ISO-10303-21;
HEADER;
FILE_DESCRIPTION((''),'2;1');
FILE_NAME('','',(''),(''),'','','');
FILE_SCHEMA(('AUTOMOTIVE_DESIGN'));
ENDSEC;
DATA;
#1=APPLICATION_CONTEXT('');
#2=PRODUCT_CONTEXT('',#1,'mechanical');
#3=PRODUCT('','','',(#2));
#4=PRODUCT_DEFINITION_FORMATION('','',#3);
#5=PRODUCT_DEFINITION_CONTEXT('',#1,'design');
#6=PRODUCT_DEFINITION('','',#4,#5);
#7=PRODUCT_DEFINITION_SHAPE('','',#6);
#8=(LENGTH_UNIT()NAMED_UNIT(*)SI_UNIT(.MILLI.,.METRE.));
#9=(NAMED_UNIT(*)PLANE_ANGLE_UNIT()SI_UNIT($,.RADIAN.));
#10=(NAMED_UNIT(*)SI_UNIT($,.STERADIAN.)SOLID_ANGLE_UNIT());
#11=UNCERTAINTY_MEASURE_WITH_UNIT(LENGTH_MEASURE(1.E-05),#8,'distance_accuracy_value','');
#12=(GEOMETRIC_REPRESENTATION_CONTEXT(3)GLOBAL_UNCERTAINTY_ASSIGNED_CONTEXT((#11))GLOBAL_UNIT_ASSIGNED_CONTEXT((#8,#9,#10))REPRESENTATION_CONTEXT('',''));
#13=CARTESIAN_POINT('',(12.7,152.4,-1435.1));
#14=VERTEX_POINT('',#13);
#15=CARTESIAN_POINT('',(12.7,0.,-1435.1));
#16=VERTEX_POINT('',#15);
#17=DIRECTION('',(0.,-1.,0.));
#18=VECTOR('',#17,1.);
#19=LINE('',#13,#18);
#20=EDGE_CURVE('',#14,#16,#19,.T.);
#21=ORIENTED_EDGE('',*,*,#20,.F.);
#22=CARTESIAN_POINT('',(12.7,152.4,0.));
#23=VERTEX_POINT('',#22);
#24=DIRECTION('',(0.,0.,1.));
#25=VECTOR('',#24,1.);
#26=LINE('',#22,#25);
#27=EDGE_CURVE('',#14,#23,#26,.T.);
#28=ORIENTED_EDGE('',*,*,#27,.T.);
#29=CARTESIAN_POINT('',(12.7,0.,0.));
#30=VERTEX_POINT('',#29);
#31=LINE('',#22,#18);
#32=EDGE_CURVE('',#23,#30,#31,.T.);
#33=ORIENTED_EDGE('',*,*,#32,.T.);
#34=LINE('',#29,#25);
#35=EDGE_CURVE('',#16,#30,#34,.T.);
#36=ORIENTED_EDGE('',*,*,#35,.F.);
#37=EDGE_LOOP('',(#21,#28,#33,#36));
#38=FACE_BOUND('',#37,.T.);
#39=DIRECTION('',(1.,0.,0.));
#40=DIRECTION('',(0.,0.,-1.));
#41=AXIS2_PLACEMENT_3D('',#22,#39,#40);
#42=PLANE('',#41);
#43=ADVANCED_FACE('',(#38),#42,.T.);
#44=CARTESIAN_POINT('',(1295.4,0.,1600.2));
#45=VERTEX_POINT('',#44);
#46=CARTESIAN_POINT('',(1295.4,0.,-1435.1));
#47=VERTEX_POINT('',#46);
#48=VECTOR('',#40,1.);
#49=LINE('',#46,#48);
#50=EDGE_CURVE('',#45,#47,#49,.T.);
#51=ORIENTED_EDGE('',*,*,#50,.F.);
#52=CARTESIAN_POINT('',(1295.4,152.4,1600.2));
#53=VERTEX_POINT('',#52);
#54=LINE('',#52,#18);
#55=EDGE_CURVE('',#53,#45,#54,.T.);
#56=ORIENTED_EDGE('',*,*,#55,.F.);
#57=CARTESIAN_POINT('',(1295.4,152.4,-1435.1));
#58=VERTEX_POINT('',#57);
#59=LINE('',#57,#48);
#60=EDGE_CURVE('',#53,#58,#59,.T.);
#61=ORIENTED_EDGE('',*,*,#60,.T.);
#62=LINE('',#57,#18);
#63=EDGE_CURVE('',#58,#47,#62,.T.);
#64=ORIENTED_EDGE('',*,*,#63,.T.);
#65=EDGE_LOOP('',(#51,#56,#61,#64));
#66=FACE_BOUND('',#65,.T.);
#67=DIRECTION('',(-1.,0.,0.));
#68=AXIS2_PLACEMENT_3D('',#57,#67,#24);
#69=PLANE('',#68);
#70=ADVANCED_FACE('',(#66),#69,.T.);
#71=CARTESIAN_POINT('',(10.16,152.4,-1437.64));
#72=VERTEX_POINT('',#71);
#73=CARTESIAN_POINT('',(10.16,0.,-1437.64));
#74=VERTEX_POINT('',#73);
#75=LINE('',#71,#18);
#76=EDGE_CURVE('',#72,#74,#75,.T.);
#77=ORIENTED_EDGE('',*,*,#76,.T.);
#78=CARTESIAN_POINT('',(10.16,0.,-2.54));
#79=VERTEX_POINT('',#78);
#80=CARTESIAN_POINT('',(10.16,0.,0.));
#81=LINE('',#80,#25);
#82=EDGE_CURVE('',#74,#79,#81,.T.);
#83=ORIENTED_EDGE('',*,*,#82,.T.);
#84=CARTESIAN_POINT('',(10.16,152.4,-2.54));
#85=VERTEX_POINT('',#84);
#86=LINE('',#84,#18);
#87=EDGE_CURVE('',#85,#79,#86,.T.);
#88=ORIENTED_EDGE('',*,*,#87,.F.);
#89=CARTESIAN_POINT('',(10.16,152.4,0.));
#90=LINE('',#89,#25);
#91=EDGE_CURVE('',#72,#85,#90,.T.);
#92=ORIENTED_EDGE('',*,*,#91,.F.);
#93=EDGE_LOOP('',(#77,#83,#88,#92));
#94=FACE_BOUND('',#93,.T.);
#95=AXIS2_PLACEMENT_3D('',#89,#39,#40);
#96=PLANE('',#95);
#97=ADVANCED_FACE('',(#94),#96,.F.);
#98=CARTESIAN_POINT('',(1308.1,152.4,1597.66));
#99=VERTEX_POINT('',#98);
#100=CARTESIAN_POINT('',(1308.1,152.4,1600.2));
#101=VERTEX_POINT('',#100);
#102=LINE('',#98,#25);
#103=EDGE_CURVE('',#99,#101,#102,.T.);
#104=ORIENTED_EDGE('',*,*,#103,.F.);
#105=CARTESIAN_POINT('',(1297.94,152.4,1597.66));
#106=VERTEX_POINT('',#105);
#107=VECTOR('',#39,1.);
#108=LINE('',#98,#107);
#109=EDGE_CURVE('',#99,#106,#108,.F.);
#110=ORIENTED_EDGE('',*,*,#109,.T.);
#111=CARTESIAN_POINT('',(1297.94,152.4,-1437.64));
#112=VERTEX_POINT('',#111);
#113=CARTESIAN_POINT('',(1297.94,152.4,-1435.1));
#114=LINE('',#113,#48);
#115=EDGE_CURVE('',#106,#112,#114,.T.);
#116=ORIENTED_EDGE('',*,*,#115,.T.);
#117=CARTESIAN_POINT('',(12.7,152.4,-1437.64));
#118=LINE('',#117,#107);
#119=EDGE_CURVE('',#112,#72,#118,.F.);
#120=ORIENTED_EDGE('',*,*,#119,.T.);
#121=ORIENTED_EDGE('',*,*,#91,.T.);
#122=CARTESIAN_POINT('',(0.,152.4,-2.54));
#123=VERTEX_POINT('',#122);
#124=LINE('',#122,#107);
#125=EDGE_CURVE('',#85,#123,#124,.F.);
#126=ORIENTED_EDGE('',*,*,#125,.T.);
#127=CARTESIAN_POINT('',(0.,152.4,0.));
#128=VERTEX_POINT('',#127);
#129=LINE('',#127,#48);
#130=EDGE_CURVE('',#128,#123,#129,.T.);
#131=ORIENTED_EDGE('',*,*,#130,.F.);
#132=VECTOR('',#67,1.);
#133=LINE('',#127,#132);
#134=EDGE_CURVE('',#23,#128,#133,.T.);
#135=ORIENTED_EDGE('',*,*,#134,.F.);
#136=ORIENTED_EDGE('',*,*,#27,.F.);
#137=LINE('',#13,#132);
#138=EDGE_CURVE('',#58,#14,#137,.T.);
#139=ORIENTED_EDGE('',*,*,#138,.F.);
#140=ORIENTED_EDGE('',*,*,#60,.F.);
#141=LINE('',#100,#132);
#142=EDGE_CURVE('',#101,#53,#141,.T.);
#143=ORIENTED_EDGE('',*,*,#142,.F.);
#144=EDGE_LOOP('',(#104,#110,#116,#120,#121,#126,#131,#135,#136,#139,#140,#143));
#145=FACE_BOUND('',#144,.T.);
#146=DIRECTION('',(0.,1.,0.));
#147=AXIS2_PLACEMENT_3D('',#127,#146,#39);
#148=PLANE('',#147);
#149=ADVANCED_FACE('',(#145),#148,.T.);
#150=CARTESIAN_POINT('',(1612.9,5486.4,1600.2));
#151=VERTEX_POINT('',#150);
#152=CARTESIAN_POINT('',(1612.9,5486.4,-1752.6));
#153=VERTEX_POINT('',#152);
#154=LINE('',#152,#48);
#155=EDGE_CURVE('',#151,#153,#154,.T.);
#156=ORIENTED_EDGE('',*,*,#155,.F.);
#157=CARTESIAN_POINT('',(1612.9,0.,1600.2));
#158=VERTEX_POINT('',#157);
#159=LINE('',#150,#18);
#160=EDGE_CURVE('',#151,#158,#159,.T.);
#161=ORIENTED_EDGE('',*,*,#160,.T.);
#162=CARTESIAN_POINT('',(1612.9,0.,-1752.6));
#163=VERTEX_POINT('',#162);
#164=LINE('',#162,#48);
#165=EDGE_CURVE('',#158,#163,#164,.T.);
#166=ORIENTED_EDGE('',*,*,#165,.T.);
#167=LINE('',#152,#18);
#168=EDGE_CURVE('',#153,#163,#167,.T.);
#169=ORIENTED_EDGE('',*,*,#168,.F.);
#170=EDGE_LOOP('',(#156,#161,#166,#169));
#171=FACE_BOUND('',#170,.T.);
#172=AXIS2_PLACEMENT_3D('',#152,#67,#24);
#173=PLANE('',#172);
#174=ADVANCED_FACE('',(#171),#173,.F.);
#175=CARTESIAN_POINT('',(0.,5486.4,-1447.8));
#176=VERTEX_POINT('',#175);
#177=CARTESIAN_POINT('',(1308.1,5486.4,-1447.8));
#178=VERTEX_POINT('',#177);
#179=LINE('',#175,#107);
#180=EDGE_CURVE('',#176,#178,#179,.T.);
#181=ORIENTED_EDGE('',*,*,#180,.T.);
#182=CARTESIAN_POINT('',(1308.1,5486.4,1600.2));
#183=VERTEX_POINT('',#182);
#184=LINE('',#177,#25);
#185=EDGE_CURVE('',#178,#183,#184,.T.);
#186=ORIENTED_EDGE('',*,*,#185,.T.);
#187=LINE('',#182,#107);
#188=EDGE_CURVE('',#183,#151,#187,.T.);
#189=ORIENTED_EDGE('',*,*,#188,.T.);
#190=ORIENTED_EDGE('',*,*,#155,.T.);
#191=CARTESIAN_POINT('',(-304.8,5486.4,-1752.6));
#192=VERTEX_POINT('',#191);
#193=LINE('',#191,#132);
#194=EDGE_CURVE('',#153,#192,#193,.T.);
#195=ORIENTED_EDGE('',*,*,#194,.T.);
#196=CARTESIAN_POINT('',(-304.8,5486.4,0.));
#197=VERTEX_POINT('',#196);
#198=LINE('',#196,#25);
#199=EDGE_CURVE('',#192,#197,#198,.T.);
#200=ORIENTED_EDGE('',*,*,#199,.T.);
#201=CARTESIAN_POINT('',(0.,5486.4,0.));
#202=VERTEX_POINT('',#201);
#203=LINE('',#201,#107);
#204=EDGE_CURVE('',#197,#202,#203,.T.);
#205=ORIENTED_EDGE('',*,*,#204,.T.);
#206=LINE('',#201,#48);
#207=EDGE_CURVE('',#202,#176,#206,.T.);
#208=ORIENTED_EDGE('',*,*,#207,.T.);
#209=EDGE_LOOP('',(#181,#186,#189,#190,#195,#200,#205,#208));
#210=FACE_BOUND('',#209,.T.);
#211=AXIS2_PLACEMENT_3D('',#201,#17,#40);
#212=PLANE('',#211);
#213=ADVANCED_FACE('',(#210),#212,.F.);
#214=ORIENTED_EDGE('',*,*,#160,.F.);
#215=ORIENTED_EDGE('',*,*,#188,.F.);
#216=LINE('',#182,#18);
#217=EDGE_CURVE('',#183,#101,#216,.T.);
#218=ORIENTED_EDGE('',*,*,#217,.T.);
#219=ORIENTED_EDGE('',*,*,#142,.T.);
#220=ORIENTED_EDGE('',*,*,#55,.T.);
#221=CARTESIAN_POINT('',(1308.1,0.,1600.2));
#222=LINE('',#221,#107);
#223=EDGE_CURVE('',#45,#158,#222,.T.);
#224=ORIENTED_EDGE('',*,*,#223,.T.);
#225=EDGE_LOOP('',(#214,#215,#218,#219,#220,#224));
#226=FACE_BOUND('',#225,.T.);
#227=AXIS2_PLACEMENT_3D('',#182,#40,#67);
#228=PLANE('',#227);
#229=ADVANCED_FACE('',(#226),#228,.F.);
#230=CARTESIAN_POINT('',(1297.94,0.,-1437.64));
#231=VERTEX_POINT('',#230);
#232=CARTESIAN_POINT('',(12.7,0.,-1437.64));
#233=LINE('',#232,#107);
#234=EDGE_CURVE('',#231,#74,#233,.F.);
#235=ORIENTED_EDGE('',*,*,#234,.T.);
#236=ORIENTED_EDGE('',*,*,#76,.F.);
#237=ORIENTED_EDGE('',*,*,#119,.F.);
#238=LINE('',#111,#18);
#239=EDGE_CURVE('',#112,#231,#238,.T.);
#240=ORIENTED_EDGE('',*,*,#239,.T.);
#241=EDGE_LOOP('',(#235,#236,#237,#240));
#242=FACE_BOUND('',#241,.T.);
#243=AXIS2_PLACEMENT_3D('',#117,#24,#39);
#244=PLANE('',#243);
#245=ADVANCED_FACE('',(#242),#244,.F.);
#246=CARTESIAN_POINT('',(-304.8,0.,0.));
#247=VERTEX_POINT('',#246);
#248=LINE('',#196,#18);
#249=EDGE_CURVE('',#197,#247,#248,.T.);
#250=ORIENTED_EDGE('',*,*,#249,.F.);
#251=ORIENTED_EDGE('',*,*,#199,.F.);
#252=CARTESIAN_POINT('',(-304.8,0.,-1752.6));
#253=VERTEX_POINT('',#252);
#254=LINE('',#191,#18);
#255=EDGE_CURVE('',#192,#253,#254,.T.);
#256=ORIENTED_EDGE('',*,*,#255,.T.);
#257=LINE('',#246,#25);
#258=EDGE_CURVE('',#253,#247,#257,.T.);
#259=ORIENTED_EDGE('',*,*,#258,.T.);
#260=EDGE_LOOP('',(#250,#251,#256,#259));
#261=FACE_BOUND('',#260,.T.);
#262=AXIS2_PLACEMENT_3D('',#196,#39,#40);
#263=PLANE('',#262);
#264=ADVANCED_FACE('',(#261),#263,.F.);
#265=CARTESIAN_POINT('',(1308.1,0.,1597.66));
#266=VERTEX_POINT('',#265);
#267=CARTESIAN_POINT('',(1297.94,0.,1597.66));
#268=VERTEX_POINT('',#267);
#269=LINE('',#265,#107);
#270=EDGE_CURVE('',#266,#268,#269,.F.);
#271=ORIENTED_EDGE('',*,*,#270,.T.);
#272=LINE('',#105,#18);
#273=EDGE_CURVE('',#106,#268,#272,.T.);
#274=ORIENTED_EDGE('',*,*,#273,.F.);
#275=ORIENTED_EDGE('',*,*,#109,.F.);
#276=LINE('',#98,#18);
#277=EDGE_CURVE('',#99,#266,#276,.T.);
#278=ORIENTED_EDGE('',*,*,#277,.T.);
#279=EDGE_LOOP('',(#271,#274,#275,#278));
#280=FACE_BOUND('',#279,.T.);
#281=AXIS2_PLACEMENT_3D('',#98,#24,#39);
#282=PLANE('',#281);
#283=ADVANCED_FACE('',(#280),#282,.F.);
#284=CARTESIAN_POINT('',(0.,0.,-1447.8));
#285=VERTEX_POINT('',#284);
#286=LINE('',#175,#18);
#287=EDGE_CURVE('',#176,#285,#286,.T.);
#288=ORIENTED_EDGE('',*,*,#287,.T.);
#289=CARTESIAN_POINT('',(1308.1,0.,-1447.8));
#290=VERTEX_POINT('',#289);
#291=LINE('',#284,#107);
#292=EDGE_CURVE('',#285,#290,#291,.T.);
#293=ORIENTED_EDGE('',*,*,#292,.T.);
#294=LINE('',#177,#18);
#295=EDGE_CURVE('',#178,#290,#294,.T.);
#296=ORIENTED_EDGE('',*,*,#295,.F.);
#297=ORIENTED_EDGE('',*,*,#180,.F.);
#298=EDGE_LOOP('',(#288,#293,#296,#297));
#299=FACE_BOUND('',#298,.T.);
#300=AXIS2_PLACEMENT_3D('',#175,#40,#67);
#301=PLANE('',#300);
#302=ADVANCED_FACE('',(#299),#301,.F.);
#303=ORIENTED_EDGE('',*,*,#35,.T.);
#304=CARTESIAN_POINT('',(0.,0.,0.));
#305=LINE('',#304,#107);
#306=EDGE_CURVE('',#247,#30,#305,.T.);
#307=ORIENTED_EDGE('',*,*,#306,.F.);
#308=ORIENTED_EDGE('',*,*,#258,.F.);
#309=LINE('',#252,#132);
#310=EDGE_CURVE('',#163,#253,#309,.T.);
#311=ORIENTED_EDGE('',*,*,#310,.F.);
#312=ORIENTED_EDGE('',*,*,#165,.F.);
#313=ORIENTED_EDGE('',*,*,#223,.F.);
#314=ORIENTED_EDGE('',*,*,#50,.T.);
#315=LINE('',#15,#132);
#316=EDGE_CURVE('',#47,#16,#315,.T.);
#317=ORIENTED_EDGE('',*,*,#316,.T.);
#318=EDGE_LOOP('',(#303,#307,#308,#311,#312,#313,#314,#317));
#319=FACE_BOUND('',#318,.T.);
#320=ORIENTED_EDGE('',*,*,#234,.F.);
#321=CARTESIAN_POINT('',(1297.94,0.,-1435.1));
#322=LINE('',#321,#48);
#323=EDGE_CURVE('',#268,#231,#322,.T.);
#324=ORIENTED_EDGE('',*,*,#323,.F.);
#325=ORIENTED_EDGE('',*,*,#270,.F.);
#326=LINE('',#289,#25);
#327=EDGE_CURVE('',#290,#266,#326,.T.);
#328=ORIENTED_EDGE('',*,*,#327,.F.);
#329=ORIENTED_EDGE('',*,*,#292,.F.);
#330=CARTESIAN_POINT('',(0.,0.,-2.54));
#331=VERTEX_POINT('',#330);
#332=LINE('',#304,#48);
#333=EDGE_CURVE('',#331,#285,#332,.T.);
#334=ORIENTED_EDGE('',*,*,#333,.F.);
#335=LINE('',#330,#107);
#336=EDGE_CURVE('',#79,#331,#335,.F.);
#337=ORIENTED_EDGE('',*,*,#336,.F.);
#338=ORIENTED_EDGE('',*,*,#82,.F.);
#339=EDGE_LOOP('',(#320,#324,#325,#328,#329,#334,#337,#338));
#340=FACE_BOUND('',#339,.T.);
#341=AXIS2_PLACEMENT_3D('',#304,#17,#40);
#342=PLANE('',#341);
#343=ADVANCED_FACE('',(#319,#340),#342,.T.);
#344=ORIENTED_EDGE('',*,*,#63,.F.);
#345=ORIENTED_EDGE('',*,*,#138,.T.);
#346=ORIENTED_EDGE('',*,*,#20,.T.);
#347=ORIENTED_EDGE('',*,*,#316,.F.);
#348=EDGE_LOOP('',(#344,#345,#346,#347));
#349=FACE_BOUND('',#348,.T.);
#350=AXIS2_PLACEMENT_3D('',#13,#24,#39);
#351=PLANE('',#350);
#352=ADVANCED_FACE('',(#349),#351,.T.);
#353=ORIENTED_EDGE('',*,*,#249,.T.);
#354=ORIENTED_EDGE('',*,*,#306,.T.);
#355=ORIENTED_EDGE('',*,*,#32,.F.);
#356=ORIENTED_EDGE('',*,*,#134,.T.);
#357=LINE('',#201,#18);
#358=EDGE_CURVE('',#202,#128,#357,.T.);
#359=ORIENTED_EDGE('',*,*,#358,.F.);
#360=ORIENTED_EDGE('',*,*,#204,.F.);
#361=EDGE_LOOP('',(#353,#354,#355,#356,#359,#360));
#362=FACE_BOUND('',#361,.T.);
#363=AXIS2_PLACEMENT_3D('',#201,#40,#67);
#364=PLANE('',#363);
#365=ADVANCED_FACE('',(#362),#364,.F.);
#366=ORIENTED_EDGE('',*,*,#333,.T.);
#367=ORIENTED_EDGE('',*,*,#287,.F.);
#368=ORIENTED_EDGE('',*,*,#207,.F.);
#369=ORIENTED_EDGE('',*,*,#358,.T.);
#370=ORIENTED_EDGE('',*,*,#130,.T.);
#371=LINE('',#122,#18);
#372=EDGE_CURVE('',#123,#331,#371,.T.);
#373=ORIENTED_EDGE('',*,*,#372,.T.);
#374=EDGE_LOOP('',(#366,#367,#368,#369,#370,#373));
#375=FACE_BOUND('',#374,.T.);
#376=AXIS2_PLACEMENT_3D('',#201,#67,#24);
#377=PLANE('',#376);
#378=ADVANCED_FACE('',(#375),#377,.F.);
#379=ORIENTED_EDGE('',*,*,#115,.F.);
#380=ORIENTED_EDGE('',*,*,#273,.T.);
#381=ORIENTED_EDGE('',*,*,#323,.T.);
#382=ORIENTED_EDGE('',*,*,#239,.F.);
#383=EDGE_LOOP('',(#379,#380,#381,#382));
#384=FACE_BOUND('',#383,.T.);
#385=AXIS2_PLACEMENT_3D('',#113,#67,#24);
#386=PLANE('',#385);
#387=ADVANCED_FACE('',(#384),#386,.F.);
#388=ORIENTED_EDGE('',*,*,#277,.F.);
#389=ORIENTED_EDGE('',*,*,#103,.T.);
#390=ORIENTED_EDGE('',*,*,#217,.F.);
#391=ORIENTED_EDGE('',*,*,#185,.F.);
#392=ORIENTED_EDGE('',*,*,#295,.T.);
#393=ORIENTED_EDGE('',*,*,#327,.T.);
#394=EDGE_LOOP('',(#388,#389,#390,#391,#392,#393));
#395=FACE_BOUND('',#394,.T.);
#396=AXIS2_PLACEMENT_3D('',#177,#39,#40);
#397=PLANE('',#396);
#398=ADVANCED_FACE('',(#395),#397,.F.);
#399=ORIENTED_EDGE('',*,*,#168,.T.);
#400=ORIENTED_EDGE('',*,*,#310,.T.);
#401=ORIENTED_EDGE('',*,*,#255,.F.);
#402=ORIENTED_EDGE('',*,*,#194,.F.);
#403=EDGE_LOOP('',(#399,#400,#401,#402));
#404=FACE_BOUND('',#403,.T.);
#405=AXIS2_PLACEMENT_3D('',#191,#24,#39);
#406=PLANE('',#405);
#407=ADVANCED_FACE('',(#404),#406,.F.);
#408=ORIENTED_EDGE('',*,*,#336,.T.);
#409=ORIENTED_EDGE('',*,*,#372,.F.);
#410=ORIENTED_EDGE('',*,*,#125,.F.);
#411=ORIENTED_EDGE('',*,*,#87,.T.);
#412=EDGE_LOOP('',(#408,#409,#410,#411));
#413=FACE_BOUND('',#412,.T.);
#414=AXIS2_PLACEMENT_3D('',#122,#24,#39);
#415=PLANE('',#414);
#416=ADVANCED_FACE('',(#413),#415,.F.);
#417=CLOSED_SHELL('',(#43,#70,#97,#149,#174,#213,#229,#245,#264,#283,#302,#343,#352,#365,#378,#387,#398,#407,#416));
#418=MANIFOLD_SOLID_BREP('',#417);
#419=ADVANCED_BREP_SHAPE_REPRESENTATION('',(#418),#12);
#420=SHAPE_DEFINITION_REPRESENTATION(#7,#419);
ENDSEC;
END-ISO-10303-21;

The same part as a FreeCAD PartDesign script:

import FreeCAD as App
import Part
import Sketcher
from FreeCAD import Vector
Q = App.Units.Quantity

doc = App.newDocument("Part")
body = doc.addObject("PartDesign::Body", "Body")

sketch1 = doc.addObject("Sketcher::SketchObject", "Sketch")
body.addObject(sketch1)
sketch1.AttachmentSupport = (doc.XZ_Plane, [""])
sketch1.MapMode = "FlatFace"
sketch1.addGeometry([
    Part.LineSegment(Vector(-305, -1753, 0), Vector(-305, 0, 0)),
    Part.LineSegment(Vector(-305, 0, 0), Vector(0, 0, 0)),
    Part.LineSegment(Vector(0, 0, 0), Vector(0, -1448, 0)),
    Part.LineSegment(Vector(0, -1448, 0), Vector(1308, -1448, 0)),
    Part.LineSegment(Vector(1308, -1448, 0), Vector(1308, 1600, 0)),
    Part.LineSegment(Vector(1308, 1600, 0), Vector(1613, 1600, 0)),
    Part.LineSegment(Vector(1613, 1600, 0), Vector(1613, -1753, 0)),
    Part.LineSegment(Vector(1613, -1753, 0), Vector(-305, -1753, 0)),
], False)
sketch1.addConstraint([
    Sketcher.Constraint("Coincident", 0, 2, 1, 1),
    Sketcher.Constraint("Coincident", 1, 2, 2, 1),
    Sketcher.Constraint("Coincident", 2, 2, 3, 1),
    Sketcher.Constraint("Coincident", 3, 2, 4, 1),
    Sketcher.Constraint("Coincident", 4, 2, 5, 1),
    Sketcher.Constraint("Coincident", 5, 2, 6, 1),
    Sketcher.Constraint("Coincident", 6, 2, 7, 1),
    Sketcher.Constraint("Coincident", 7, 2, 0, 1),
    Sketcher.Constraint("Vertical", 0),
    Sketcher.Constraint("Horizontal", 1),
    Sketcher.Constraint("Vertical", 2),
    Sketcher.Constraint("Horizontal", 3),
    Sketcher.Constraint("Vertical", 4),
    Sketcher.Constraint("Horizontal", 5),
    Sketcher.Constraint("Vertical", 6),
    Sketcher.Constraint("Horizontal", 7),
    Sketcher.Constraint("Coincident", 1, 2, -1, 1),
    Sketcher.Constraint("Equal", 1, 5),
    Sketcher.Constraint("DistanceX", 1, 1, 1, 2, Q("12 in")),
    Sketcher.Constraint("DistanceY", 0, 1, 0, 2, Q("69 in")),
    Sketcher.Constraint("DistanceY", 2, 2, 2, 1, Q("57 in")),
    Sketcher.Constraint("DistanceY", 4, 1, 4, 2, Q("120 in")),
    Sketcher.Constraint("DistanceX", 3, 1, 3, 2, Q("51.5 in")),
])
pad1 = doc.addObject("PartDesign::Pad", "Pad")
body.addObject(pad1)
pad1.Profile = sketch1
pad1.Length = Q("216 in")
pad1.Reversed = True

sketch2 = doc.addObject("Sketcher::SketchObject", "Sketch001")
body.addObject(sketch2)
sketch2.AttachmentSupport = (doc.XZ_Plane, [""])
sketch2.MapMode = "FlatFace"
sketch2.addGeometry([
    Part.LineSegment(Vector(0, 0, 0), Vector(12.7, 0, 0)),
    Part.LineSegment(Vector(12.7, 0, 0), Vector(12.7, -1435.1, 0)),
    Part.LineSegment(Vector(12.7, -1435.1, 0), Vector(1295.4, -1435.1, 0)),
    Part.LineSegment(Vector(1295.4, -1435.1, 0), Vector(1295.4, 1600.2, 0)),
    Part.LineSegment(Vector(1295.4, 1600.2, 0), Vector(1308.1, 1600.2, 0)),
    Part.LineSegment(Vector(1308.1, 1600.2, 0), Vector(1308.1, 1597.7, 0)),
    Part.LineSegment(Vector(1308.1, 1597.7, 0), Vector(1297.9, 1597.7, 0)),
    Part.LineSegment(Vector(1297.9, 1597.7, 0), Vector(1297.9, -1437.6, 0)),
    Part.LineSegment(Vector(1297.9, -1437.6, 0), Vector(10.2, -1437.6, 0)),
    Part.LineSegment(Vector(10.2, -1437.6, 0), Vector(10.2, -2.5, 0)),
    Part.LineSegment(Vector(10.2, -2.5, 0), Vector(0, -2.5, 0)),
    Part.LineSegment(Vector(0, -2.5, 0), Vector(0, 0, 0)),
], False)
sketch2.addConstraint([
    Sketcher.Constraint("Coincident", 0, 2, 1, 1),
    Sketcher.Constraint("Coincident", 1, 2, 2, 1),
    Sketcher.Constraint("Coincident", 2, 2, 3, 1),
    Sketcher.Constraint("Coincident", 3, 2, 4, 1),
    Sketcher.Constraint("Coincident", 4, 2, 5, 1),
    Sketcher.Constraint("Coincident", 5, 2, 6, 1),
    Sketcher.Constraint("Coincident", 6, 2, 7, 1),
    Sketcher.Constraint("Coincident", 7, 2, 8, 1),
    Sketcher.Constraint("Coincident", 8, 2, 9, 1),
    Sketcher.Constraint("Coincident", 9, 2, 10, 1),
    Sketcher.Constraint("Coincident", 10, 2, 11, 1),
    Sketcher.Constraint("Coincident", 11, 2, 0, 1),
    Sketcher.Constraint("Horizontal", 0),
    Sketcher.Constraint("Vertical", 1),
    Sketcher.Constraint("Horizontal", 2),
    Sketcher.Constraint("Vertical", 3),
    Sketcher.Constraint("Horizontal", 4),
    Sketcher.Constraint("Vertical", 5),
    Sketcher.Constraint("Horizontal", 6),
    Sketcher.Constraint("Vertical", 7),
    Sketcher.Constraint("Horizontal", 8),
    Sketcher.Constraint("Vertical", 9),
    Sketcher.Constraint("Horizontal", 10),
    Sketcher.Constraint("Vertical", 11),
    Sketcher.Constraint("Coincident", 11, 2, -1, 1),
    Sketcher.Constraint("Equal", 0, 4),
    Sketcher.Constraint("Equal", 6, 10),
    Sketcher.Constraint("Equal", 3, 7),
    Sketcher.Constraint("Equal", 1, 9),
    Sketcher.Constraint("DistanceX", 0, 1, 0, 2, Q("0.5 in")),
    Sketcher.Constraint("DistanceX", 2, 1, 2, 2, Q("50.5 in")),
    Sketcher.Constraint("DistanceX", 6, 2, 6, 1, Q("0.4 in")),
    Sketcher.Constraint("DistanceY", 1, 2, 1, 1, Q("56.5 in")),
    Sketcher.Constraint("DistanceY", 3, 1, 3, 2, Q("119.5 in")),
    Sketcher.Constraint("DistanceY", 5, 2, 5, 1, Q("0.1 in")),
])
pad2 = doc.addObject("PartDesign::Pad", "Pad001")
body.addObject(pad2)
pad2.Profile = sketch2
pad2.Length = Q("6 in")
pad2.Reversed = True

doc.recompute()
